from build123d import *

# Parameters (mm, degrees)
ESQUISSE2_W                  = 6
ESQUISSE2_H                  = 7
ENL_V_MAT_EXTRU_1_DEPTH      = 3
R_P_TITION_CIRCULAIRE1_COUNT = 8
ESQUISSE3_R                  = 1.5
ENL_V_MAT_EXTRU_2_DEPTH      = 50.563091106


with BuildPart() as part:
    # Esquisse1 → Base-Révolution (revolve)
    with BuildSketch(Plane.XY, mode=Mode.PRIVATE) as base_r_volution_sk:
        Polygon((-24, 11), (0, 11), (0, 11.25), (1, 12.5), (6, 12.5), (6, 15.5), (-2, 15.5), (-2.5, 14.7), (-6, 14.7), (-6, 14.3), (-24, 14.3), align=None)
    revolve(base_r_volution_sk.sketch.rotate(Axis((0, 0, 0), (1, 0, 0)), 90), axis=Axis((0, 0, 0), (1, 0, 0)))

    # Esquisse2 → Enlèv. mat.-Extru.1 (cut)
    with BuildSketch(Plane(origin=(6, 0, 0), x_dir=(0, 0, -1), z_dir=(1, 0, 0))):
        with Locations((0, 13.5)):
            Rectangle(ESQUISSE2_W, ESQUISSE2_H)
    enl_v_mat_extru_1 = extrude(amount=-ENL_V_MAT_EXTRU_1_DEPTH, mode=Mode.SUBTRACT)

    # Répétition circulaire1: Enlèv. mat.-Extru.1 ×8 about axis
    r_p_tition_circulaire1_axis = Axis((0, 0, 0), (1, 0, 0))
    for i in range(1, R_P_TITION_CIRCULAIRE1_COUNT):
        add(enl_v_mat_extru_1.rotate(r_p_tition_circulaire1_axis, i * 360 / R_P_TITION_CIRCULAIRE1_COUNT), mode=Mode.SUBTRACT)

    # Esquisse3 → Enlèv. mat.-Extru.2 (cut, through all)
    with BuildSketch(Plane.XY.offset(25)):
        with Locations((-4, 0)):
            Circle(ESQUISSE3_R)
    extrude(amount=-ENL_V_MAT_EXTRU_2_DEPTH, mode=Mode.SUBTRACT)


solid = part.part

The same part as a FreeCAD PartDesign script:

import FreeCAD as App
import Part
import Sketcher
from FreeCAD import Vector


def add_polygon(sketch, points):
    """Adds a closed chain of lines whose ends are joined by coincident constraints."""
    first, n = sketch.GeometryCount, len(points)
    for a, b in zip(points, points[1:] + points[:1]):
        sketch.addGeometry(Part.LineSegment(App.Vector(*a, 0), App.Vector(*b, 0)), False)
    for i in range(n):
        sketch.addConstraint(Sketcher.Constraint("Coincident", first + i, 2, first + (i + 1) % n, 1))

doc = App.newDocument("Part")
body = doc.addObject("PartDesign::Body", "Body")

# Sketch on XY plane
sketch1 = doc.addObject("Sketcher::SketchObject", "Sketch")
body.addObject(sketch1)
sketch1.AttachmentSupport = (doc.XY_Plane, [""])
sketch1.MapMode = "FlatFace"
add_polygon(sketch1, [(-24, 11), (0, 11), (0, 11.25), (1, 12.5), (6, 12.5), (6, 15.5), (-2, 15.5), (-2.5, 14.7), (-6, 14.7), (-6, 14.3), (-24, 14.3)])  # lines 0-10
sketch1.addConstraint([
    Sketcher.Constraint("Horizontal", 0),
    Sketcher.Constraint("Vertical", 1),
    Sketcher.Constraint("Horizontal", 3),
    Sketcher.Constraint("Vertical", 4),
    Sketcher.Constraint("Horizontal", 5),
    Sketcher.Constraint("Horizontal", 7),
    Sketcher.Constraint("Vertical", 8),
    Sketcher.Constraint("Horizontal", 9),
    Sketcher.Constraint("Vertical", 10),
    Sketcher.Constraint("PointOnObject", 0, 2, -2),
    Sketcher.Constraint("DistanceX", 0, 1, 0, 2, 24.0),
    Sketcher.Constraint("DistanceX", 3, 1, 3, 2, 5.0),
    Sketcher.Constraint("DistanceX", 5, 2, 5, 1, 8.0),
    Sketcher.Constraint("DistanceX", 9, 2, 9, 1, 18.0),
    Sketcher.Constraint("DistanceY", 4, 1, 4, 2, 3.0),
    Sketcher.Constraint("DistanceX", 7, 2, 7, 1, 3.5),
    Sketcher.Constraint("DistanceY", 8, 2, 8, 1, 0.4),
    Sketcher.Constraint("DistanceY", 10, 2, 10, 1, 3.3),
    Sketcher.Constraint("DistanceY", -1, 1, 0, 2, 11.0),
    Sketcher.Constraint("DistanceX", -1, 1, 2, 2, 1.0),
    Sketcher.Constraint("DistanceY", 1, 1, 1, 2, 0.25),
    Sketcher.Constraint("DistanceY", -1, 1, 2, 2, 12.5),
])
revolution = doc.addObject("PartDesign::Revolution", "Revolution")
body.addObject(revolution)
revolution.Profile = sketch1
revolution.ReferenceAxis = (sketch1, ["H_Axis"])
revolution.Angle = 360

# Sketch on YZ plane
sketch2 = doc.addObject("Sketcher::SketchObject", "Sketch001")
body.addObject(sketch2)
sketch2.AttachmentSupport = (doc.YZ_Plane, [""])
sketch2.MapMode = "FlatFace"
sketch2.AttachmentOffset = App.Placement(Vector(0, 0, 6), App.Rotation())
add_polygon(sketch2, [(17, 3), (10, 3), (10, -3), (17, -3)])  # lines 0-3
sketch2.addConstraint([
    Sketcher.Constraint("Horizontal", 0),
    Sketcher.Constraint("Vertical", 1),
    Sketcher.Constraint("Horizontal", 2),
    Sketcher.Constraint("Vertical", 3),
    Sketcher.Constraint("DistanceX", 0, 2, 0, 1, 7.0),
    Sketcher.Constraint("DistanceY", 1, 2, 1, 1, 6.0),
    Sketcher.Constraint("DistanceX", -1, 1, 0, 2, 10.0),
    Sketcher.Constraint("DistanceY", -1, 1, 0, 2, 3.0),
])
pocket1 = doc.addObject("PartDesign::Pocket", "Pocket")
body.addObject(pocket1)
pocket1.Profile = sketch2
pocket1.Length = 3
doc.recompute()

polarpattern = doc.addObject("PartDesign::PolarPattern", "PolarPattern")
body.addObject(polarpattern)
polarpattern.Originals = [pocket1]
polarpattern.Axis = (doc.X_Axis, [""])
polarpattern.Angle = 360
polarpattern.Occurrences = 8
body.Tip = polarpattern

# Sketch on XY plane
sketch3 = doc.addObject("Sketcher::SketchObject", "Sketch002")
body.addObject(sketch3)
sketch3.AttachmentSupport = (doc.XY_Plane, [""])
sketch3.MapMode = "FlatFace"
sketch3.AttachmentOffset = App.Placement(Vector(0, 0, 25), App.Rotation())
sketch3.addGeometry(Part.Circle(Vector(-4, 0, 0), Vector(0, 0, 1), 1.5), False)
sketch3.addConstraint([
    Sketcher.Constraint("PointOnObject", 0, 3, -1),
    Sketcher.Constraint("Diameter", 0, 3.0),
    Sketcher.Constraint("DistanceX", 0, 3, -1, 1, 4.0),
])
pocket2 = doc.addObject("PartDesign::Pocket", "Pocket001")
body.addObject(pocket2)
pocket2.Profile = sketch3
pocket2.Type = "ThroughAll"

doc.recompute()
